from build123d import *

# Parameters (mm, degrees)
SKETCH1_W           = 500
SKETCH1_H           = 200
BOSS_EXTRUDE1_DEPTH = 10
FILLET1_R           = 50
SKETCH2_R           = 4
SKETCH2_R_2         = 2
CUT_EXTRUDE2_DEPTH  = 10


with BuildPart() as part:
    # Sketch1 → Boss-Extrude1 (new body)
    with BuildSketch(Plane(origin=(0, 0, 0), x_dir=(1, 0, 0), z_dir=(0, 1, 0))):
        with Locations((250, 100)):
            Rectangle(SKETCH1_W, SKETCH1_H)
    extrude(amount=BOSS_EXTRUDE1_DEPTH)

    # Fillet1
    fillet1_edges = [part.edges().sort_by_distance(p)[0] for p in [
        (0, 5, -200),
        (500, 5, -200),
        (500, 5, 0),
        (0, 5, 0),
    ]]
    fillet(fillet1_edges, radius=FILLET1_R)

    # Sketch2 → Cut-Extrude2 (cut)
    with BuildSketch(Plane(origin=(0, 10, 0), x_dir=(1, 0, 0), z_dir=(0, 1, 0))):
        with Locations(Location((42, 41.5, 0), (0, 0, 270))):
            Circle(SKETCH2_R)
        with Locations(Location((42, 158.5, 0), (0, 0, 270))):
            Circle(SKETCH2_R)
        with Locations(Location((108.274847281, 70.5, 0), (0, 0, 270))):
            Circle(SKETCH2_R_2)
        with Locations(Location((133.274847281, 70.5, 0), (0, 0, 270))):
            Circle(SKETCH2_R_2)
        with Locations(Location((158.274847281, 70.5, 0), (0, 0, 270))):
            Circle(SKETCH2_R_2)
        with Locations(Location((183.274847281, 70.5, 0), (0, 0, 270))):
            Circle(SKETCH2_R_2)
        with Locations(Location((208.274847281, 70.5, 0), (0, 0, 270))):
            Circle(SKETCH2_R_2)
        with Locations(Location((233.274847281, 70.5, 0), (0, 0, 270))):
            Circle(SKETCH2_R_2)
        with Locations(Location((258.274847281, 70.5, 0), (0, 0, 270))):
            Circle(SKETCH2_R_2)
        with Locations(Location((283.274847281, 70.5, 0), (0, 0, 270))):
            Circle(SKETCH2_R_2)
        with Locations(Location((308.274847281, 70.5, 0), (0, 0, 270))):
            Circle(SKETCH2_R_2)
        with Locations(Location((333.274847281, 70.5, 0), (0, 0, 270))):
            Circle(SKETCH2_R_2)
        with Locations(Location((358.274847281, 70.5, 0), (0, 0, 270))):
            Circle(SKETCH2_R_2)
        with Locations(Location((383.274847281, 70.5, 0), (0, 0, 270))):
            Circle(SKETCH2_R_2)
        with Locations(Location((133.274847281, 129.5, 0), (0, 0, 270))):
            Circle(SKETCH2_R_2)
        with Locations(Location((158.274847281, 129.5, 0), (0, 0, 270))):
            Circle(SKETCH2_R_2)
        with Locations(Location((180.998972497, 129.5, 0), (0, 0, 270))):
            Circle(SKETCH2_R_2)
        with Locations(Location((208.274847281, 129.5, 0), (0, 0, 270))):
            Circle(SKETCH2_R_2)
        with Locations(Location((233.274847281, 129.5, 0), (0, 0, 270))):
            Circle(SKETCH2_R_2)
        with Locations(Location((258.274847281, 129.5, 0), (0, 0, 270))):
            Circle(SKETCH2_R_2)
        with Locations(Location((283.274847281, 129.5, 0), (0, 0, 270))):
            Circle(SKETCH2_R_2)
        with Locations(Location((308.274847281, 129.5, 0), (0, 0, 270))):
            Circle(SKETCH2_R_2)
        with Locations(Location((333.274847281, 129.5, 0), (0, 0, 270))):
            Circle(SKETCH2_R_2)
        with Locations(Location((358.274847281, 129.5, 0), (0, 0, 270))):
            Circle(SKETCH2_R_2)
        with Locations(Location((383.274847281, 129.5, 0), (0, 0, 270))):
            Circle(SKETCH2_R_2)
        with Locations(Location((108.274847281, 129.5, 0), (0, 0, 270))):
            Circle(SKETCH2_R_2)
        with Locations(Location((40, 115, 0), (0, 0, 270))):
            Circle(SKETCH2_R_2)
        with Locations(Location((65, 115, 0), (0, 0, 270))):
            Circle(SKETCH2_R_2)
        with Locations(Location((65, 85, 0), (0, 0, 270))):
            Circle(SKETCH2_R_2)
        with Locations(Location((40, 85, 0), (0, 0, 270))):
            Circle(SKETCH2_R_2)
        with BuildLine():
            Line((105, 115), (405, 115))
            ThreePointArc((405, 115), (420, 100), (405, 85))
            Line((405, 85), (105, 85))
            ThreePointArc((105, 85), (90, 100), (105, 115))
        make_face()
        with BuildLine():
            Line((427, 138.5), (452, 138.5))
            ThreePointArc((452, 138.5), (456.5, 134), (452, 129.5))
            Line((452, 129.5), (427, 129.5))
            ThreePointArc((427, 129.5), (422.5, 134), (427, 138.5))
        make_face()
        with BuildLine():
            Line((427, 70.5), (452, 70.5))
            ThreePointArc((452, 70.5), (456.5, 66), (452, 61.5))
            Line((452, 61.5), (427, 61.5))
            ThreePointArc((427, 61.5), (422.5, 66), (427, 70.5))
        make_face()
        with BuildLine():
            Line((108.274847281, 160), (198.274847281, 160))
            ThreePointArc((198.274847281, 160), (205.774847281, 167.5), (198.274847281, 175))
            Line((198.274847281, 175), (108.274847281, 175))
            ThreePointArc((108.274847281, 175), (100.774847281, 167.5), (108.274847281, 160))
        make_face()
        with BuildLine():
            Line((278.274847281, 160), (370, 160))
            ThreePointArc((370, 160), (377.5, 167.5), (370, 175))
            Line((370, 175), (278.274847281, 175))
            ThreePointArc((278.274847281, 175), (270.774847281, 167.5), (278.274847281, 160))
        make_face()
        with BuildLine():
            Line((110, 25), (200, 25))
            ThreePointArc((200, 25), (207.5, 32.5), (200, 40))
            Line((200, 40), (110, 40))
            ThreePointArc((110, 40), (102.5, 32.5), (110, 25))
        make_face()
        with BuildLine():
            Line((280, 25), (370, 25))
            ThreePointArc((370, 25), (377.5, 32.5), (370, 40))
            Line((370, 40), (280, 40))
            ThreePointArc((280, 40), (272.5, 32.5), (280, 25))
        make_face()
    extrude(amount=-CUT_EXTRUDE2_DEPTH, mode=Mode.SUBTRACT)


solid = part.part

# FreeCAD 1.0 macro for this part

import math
import FreeCAD as App
import Part
import Sketcher

V = App.Vector
Q = App.Units.Quantity


def edges_at(feature, points):
    """Names of the edges that pass closest to the given points."""
    edges = feature.Shape.Edges
    near = lambda p: min(range(len(edges)), key=lambda i: edges[i].distToShape(Part.Vertex(*p))[0])
    return sorted({f"Edge{near(p) + 1}" for p in points})

doc = App.newDocument("Part")
body = doc.addObject("PartDesign::Body", "Body")

sketch1 = doc.addObject("Sketcher::SketchObject", "Sketch")
body.addObject(sketch1)
sketch1.AttachmentSupport = (doc.XZ_Plane, [""])
sketch1.MapMode = "FlatFace"
sketch1.addGeometry([
    Part.LineSegment(V(0, -200, 0), V(0, 0, 0)),
    Part.LineSegment(V(0, 0, 0), V(500, 0, 0)),
    Part.LineSegment(V(500, 0, 0), V(500, -200, 0)),
    Part.LineSegment(V(500, -200, 0), V(0, -200, 0)),
], False)
sketch1.addConstraint([
    Sketcher.Constraint("Coincident", 0, 2, 1, 1),
    Sketcher.Constraint("Coincident", 1, 2, 2, 1),
    Sketcher.Constraint("Coincident", 2, 2, 3, 1),
    Sketcher.Constraint("Coincident", 3, 2, 0, 1),
    Sketcher.Constraint("Vertical", 0),
    Sketcher.Constraint("Horizontal", 1),
    Sketcher.Constraint("Vertical", 2),
    Sketcher.Constraint("Horizontal", 3),
    Sketcher.Constraint("Coincident", 0, 2, -1, 1),
    Sketcher.Constraint("DistanceX", 1, 1, 1, 2, Q("500 mm")),
    Sketcher.Constraint("DistanceY", 0, 1, 0, 2, Q("200 mm")),
])
pad1 = doc.addObject("PartDesign::Pad", "Pad")
body.addObject(pad1)
pad1.Profile = sketch1
pad1.Length = 10
pad1.Reversed = True
doc.recompute()

fillet = doc.addObject("PartDesign::Fillet", "Fillet")
body.addObject(fillet)
fillet.Base = (pad1, edges_at(pad1, [
    (0, 5, -200),
    (500, 5, -200),
    (500, 5, 0),
    (0, 5, 0),
]))
fillet.Radius = 50

sketch2 = doc.addObject("Sketcher::SketchObject", "Sketch001")
body.addObject(sketch2)
sketch2.AttachmentSupport = (doc.XZ_Plane, [""])
sketch2.MapMode = "FlatFace"
sketch2.AttachmentOffset = App.Placement(V(0, 0, -10), App.Rotation())
sketch2.addGeometry([
    Part.Circle(V(42, -41.5, 0), V(0, 0, 1), 4),
    Part.Circle(V(42, -158.5, 0), V(0, 0, 1), 4),
    Part.Circle(V(108.3, -70.5, 0), V(0, 0, 1), 2),
    Part.Circle(V(133.3, -70.5, 0), V(0, 0, 1), 2),
    Part.Circle(V(158.3, -70.5, 0), V(0, 0, 1), 2),
    Part.Circle(V(183.3, -70.5, 0), V(0, 0, 1), 2),
    Part.Circle(V(208.3, -70.5, 0), V(0, 0, 1), 2),
    Part.Circle(V(233.3, -70.5, 0), V(0, 0, 1), 2),
    Part.Circle(V(258.3, -70.5, 0), V(0, 0, 1), 2),
    Part.Circle(V(283.3, -70.5, 0), V(0, 0, 1), 2),
    Part.Circle(V(308.3, -70.5, 0), V(0, 0, 1), 2),
    Part.Circle(V(333.3, -70.5, 0), V(0, 0, 1), 2),
    Part.Circle(V(358.3, -70.5, 0), V(0, 0, 1), 2),
    Part.Circle(V(383.3, -70.5, 0), V(0, 0, 1), 2),
    Part.Circle(V(133.3, -129.5, 0), V(0, 0, 1), 2),
    Part.Circle(V(158.3, -129.5, 0), V(0, 0, 1), 2),
    Part.Circle(V(181, -129.5, 0), V(0, 0, 1), 2),
    Part.Circle(V(208.3, -129.5, 0), V(0, 0, 1), 2),
    Part.Circle(V(233.3, -129.5, 0), V(0, 0, 1), 2),
    Part.Circle(V(258.3, -129.5, 0), V(0, 0, 1), 2),
    Part.Circle(V(283.3, -129.5, 0), V(0, 0, 1), 2),
    Part.Circle(V(308.3, -129.5, 0), V(0, 0, 1), 2),
    Part.Circle(V(333.3, -129.5, 0), V(0, 0, 1), 2),
    Part.Circle(V(358.3, -129.5, 0), V(0, 0, 1), 2),
    Part.Circle(V(383.3, -129.5, 0), V(0, 0, 1), 2),
    Part.Circle(V(108.3, -129.5, 0), V(0, 0, 1), 2),
    Part.Circle(V(40, -115, 0), V(0, 0, 1), 2),
    Part.Circle(V(65, -115, 0), V(0, 0, 1), 2),
    Part.Circle(V(65, -85, 0), V(0, 0, 1), 2),
    Part.Circle(V(40, -85, 0), V(0, 0, 1), 2),
    Part.LineSegment(V(405, -115, 0), V(105, -115, 0)),
    Part.ArcOfCircle(Part.Circle(V(105, -100, 0), V(0, 0, 1), 15), math.radians(90), math.radians(270)),
    Part.LineSegment(V(105, -85, 0), V(405, -85, 0)),
    Part.ArcOfCircle(Part.Circle(V(405, -100, 0), V(0, 0, 1), 15), math.radians(-90), math.radians(90)),
    Part.LineSegment(V(452, -138.5, 0), V(427, -138.5, 0)),
    Part.ArcOfCircle(Part.Circle(V(427, -134, 0), V(0, 0, 1), 4.5), math.radians(90), math.radians(270)),
    Part.LineSegment(V(427, -129.5, 0), V(452, -129.5, 0)),
    Part.ArcOfCircle(Part.Circle(V(452, -134, 0), V(0, 0, 1), 4.5), math.radians(-90), math.radians(90)),
    Part.LineSegment(V(452, -70.5, 0), V(427, -70.5, 0)),
    Part.ArcOfCircle(Part.Circle(V(427, -66, 0), V(0, 0, 1), 4.5), math.radians(90), math.radians(270)),
    Part.LineSegment(V(427, -61.5, 0), V(452, -61.5, 0)),
    Part.ArcOfCircle(Part.Circle(V(452, -66, 0), V(0, 0, 1), 4.5), math.radians(-90), math.radians(90)),
    Part.LineSegment(V(108.3, -160, 0), V(198.3, -160, 0)),
    Part.ArcOfCircle(Part.Circle(V(198.3, -167.5, 0), V(0, 0, 1), 7.5), math.radians(-90), math.radians(90)),
    Part.LineSegment(V(198.3, -175, 0), V(108.3, -175, 0)),
    Part.ArcOfCircle(Part.Circle(V(108.3, -167.5, 0), V(0, 0, 1), 7.5), math.radians(90), math.radians(270)),
    Part.LineSegment(V(278.3, -160, 0), V(370, -160, 0)),
    Part.ArcOfCircle(Part.Circle(V(370, -167.5, 0), V(0, 0, 1), 7.5), math.radians(-90), math.radians(90)),
    Part.LineSegment(V(370, -175, 0), V(278.3, -175, 0)),
    Part.ArcOfCircle(Part.Circle(V(278.3, -167.5, 0), V(0, 0, 1), 7.5), math.radians(90), math.radians(270)),
    Part.LineSegment(V(110, -25, 0), V(200, -25, 0)),
    Part.ArcOfCircle(Part.Circle(V(200, -32.5, 0), V(0, 0, 1), 7.5), math.radians(-90), math.radians(90)),
    Part.LineSegment(V(200, -40, 0), V(110, -40, 0)),
    Part.ArcOfCircle(Part.Circle(V(110, -32.5, 0), V(0, 0, 1), 7.5), math.radians(90), math.radians(270)),
    Part.LineSegment(V(280, -25, 0), V(370, -25, 0)),
    Part.ArcOfCircle(Part.Circle(V(370, -32.5, 0), V(0, 0, 1), 7.5), math.radians(-90), math.radians(90)),
    Part.LineSegment(V(370, -40, 0), V(280, -40, 0)),
    Part.ArcOfCircle(Part.Circle(V(280, -32.5, 0), V(0, 0, 1), 7.5), math.radians(90), math.radians(270)),
], False)
sketch2.addConstraint([
    Sketcher.Constraint("Tangent", 30, 2, 31, 2),
    Sketcher.Constraint("Tangent", 31, 1, 32, 1),
    Sketcher.Constraint("Tangent", 32, 2, 33, 2),
    Sketcher.Constraint("Tangent", 33, 1, 30, 1),
    Sketcher.Constraint("Tangent", 34, 2, 35, 2),
    Sketcher.Constraint("Tangent", 35, 1, 36, 1),
    Sketcher.Constraint("Tangent", 36, 2, 37, 2),
    Sketcher.Constraint("Tangent", 37, 1, 34, 1),
    Sketcher.Constraint("Tangent", 38, 2, 39, 2),
    Sketcher.Constraint("Tangent", 39, 1, 40, 1),
    Sketcher.Constraint("Tangent", 40, 2, 41, 2),
    Sketcher.Constraint("Tangent", 41, 1, 38, 1),
    Sketcher.Constraint("Tangent", 42, 2, 43, 2),
    Sketcher.Constraint("Tangent", 43, 1, 44, 1),
    Sketcher.Constraint("Tangent", 44, 2, 45, 2),
    Sketcher.Constraint("Tangent", 45, 1, 42, 1),
    Sketcher.Constraint("Tangent", 46, 2, 47, 2),
    Sketcher.Constraint("Tangent", 47, 1, 48, 1),
    Sketcher.Constraint("Tangent", 48, 2, 49, 2),
    Sketcher.Constraint("Tangent", 49, 1, 46, 1),
    Sketcher.Constraint("Tangent", 50, 2, 51, 2),
    Sketcher.Constraint("Tangent", 51, 1, 52, 1),
    Sketcher.Constraint("Tangent", 52, 2, 53, 2),
    Sketcher.Constraint("Tangent", 53, 1, 50, 1),
    Sketcher.Constraint("Tangent", 54, 2, 55, 2),
    Sketcher.Constraint("Tangent", 55, 1, 56, 1),
    Sketcher.Constraint("Tangent", 56, 2, 57, 2),
    Sketcher.Constraint("Tangent", 57, 1, 54, 1),
    Sketcher.Constraint("Horizontal", 30),
    Sketcher.Constraint("Horizontal", 32),
    Sketcher.Constraint("Horizontal", 34),
    Sketcher.Constraint("Horizontal", 36),
    Sketcher.Constraint("Horizontal", 38),
    Sketcher.Constraint("Horizontal", 40),
    Sketcher.Constraint("Horizontal", 42),
    Sketcher.Constraint("Horizontal", 44),
    Sketcher.Constraint("Horizontal", 46),
    Sketcher.Constraint("Horizontal", 48),
    Sketcher.Constraint("Horizontal", 50),
    Sketcher.Constraint("Horizontal", 52),
    Sketcher.Constraint("Horizontal", 54),
    Sketcher.Constraint("Horizontal", 56),
    Sketcher.Constraint("Equal", 0, 1),
    Sketcher.Constraint("Equal", 2, 3),
    Sketcher.Constraint("Equal", 3, 4),
    Sketcher.Constraint("Equal", 4, 5),
    Sketcher.Constraint("Equal", 5, 6),
    Sketcher.Constraint("Equal", 6, 7),
    Sketcher.Constraint("Equal", 7, 8),
    Sketcher.Constraint("Equal", 8, 9),
    Sketcher.Constraint("Equal", 9, 10),
    Sketcher.Constraint("Equal", 10, 11),
    Sketcher.Constraint("Equal", 11, 12),
    Sketcher.Constraint("Equal", 12, 13),
    Sketcher.Constraint("Equal", 13, 14),
    Sketcher.Constraint("Equal", 14, 15),
    Sketcher.Constraint("Equal", 15, 16),
    Sketcher.Constraint("Equal", 16, 17),
    Sketcher.Constraint("Equal", 17, 18),
    Sketcher.Constraint("Equal", 18, 19),
    Sketcher.Constraint("Equal", 19, 20),
    Sketcher.Constraint("Equal", 20, 21),
    Sketcher.Constraint("Equal", 21, 22),
    Sketcher.Constraint("Equal", 22, 23),
    Sketcher.Constraint("Equal", 23, 24),
    Sketcher.Constraint("Equal", 24, 25),
    Sketcher.Constraint("Equal", 25, 26),
    Sketcher.Constraint("Equal", 26, 27),
    Sketcher.Constraint("Equal", 27, 28),
    Sketcher.Constraint("Equal", 28, 29),
    Sketcher.Constraint("Equal", 37, 39),
    Sketcher.Constraint("Equal", 45, 47),
    Sketcher.Constraint("Equal", 49, 51),
    Sketcher.Constraint("Equal", 53, 55),
    Sketcher.Constraint("Horizontal", 2, 3, 3, 3),
    Sketcher.Constraint("Horizontal", 3, 3, 4, 3),
    Sketcher.Constraint("Horizontal", 4, 3, 5, 3),
    Sketcher.Constraint("Horizontal", 5, 3, 6, 3),
    Sketcher.Constraint("Horizontal", 6, 3, 7, 3),
    Sketcher.Constraint("Horizontal", 7, 3, 8, 3),
    Sketcher.Constraint("Horizontal", 8, 3, 9, 3),
    Sketcher.Constraint("Horizontal", 9, 3, 10, 3),
    Sketcher.Constraint("Horizontal", 10, 3, 11, 3),
    Sketcher.Constraint("Horizontal", 11, 3, 12, 3),
    Sketcher.Constraint("Horizontal", 12, 3, 13, 3),
    Sketcher.Constraint("Horizontal", 14, 3, 15, 3),
    Sketcher.Constraint("Horizontal", 15, 3, 16, 3),
    Sketcher.Constraint("Horizontal", 16, 3, 17, 3),
    Sketcher.Constraint("Horizontal", 17, 3, 18, 3),
    Sketcher.Constraint("Horizontal", 18, 3, 19, 3),
    Sketcher.Constraint("Horizontal", 19, 3, 20, 3),
    Sketcher.Constraint("Horizontal", 20, 3, 21, 3),
    Sketcher.Constraint("Horizontal", 21, 3, 22, 3),
    Sketcher.Constraint("Horizontal", 22, 3, 23, 3),
    Sketcher.Constraint("Horizontal", 23, 3, 24, 3),
    Sketcher.Constraint("Horizontal", 24, 3, 25, 3),
    Sketcher.Constraint("Horizontal", 26, 3, 27, 3),
    Sketcher.Constraint("Horizontal", 28, 3, 29, 3),
    Sketcher.Constraint("Horizontal", 45, 3, 47, 3),
    Sketcher.Constraint("Horizontal", 53, 3, 55, 3),
    Sketcher.Constraint("Horizontal", 27, 3, 30, 2),
    Sketcher.Constraint("Horizontal", 29, 3, 31, 1),
    Sketcher.Constraint("Horizontal", 25, 3, 35, 1),
    Sketcher.Constraint("Horizontal", 13, 3, 38, 2),
    Sketcher.Constraint("Vertical", 0, 3, 1, 3),
    Sketcher.Constraint("Vertical", 3, 3, 14, 3),
    Sketcher.Constraint("Vertical", 4, 3, 15, 3),
    Sketcher.Constraint("Vertical", 6, 3, 17, 3),
    Sketcher.Constraint("Vertical", 7, 3, 18, 3),
    Sketcher.Constraint("Vertical", 8, 3, 19, 3),
    Sketcher.Constraint("Vertical", 9, 3, 20, 3),
    Sketcher.Constraint("Vertical", 10, 3, 21, 3),
    Sketcher.Constraint("Vertical", 11, 3, 22, 3),
    Sketcher.Constraint("Vertical", 12, 3, 23, 3),
    Sketcher.Constraint("Vertical", 13, 3, 24, 3),
    Sketcher.Constraint("Vertical", 2, 3, 25, 3),
    Sketcher.Constraint("Vertical", 27, 3, 28, 3),
    Sketcher.Constraint("Vertical", 26, 3, 29, 3),
    Sketcher.Constraint("Vertical", 35, 3, 39, 3),
    Sketcher.Constraint("Vertical", 37, 3, 41, 3),
    Sketcher.Constraint("Vertical", 25, 3, 45, 3),
    Sketcher.Constraint("Vertical", 47, 3, 55, 3),
    Sketcher.Constraint("Equal", 44, 50),
    Sketcher.Constraint("Equal", 52, 54),
    Sketcher.Constraint("Diameter", 0, Q("8 mm")),
    Sketcher.Constraint("Diameter", 2, Q("4 mm")),
    Sketcher.Constraint("Radius", 31, Q("15 mm")),
    Sketcher.Constraint("Radius", 35, Q("4.5 mm")),
    Sketcher.Constraint("Radius", 43, Q("7.5 mm")),
    Sketcher.Constraint("DistanceX", 30, 2, 30, 1, Q("300 mm")),
    Sketcher.Constraint("DistanceX", 34, 2, 34, 1, Q("25 mm")),
    Sketcher.Constraint("DistanceX", 42, 1, 42, 2, Q("90 mm")),
    Sketcher.Constraint("DistanceX", -1, 1, 0, 3, Q("42 mm")),
    Sketcher.Constraint("DistanceX", -1, 1, 26, 3, Q("40 mm")),
    Sketcher.Constraint("DistanceY", 26, 3, -1, 1, Q("115 mm")),
    Sketcher.Constraint("DistanceX", -1, 1, 27, 3, Q("65 mm")),
    Sketcher.Constraint("DistanceX", -1, 1, 31, 3, Q("105 mm")),
    Sketcher.Constraint("DistanceX", -1, 1, 35, 3, Q("427 mm")),
    Sketcher.Constraint("DistanceY", 35, 3, -1, 1, Q("134 mm")),
    Sketcher.Constraint("DistanceY", 39, 3, -1, 1, Q("66 mm")),
    Sketcher.Constraint("DistanceX", -1, 1, 47, 3, Q("370 mm")),
    Sketcher.Constraint("DistanceX", -1, 1, 51, 3, Q("200 mm")),
    Sketcher.Constraint("DistanceY", 42, 2, -1, 1, Q("160 mm")),
    Sketcher.Constraint("DistanceY", 50, 2, -1, 1, Q("25 mm")),
    Sketcher.Constraint("DistanceY", 0, 3, -1, 1, Q("41.5 mm")),
    Sketcher.Constraint("DistanceY", 1, 3, -1, 1, Q("158.5 mm")),
    Sketcher.Constraint("DistanceX", 46, 1, 46, 2, Q("91.725153 mm")),
    Sketcher.Constraint("DistanceX", -1, 1, 2, 3, Q("108.274847 mm")),
    Sketcher.Constraint("DistanceX", -1, 1, 3, 3, Q("133.274847 mm")),
    Sketcher.Constraint("DistanceX", -1, 1, 4, 3, Q("158.274847 mm")),
    Sketcher.Constraint("DistanceX", -1, 1, 5, 3, Q("183.274847 mm")),
    Sketcher.Constraint("DistanceX", -1, 1, 6, 3, Q("208.274847 mm")),
    Sketcher.Constraint("DistanceX", -1, 1, 7, 3, Q("233.274847 mm")),
    Sketcher.Constraint("DistanceX", -1, 1, 8, 3, Q("258.274847 mm")),
    Sketcher.Constraint("DistanceX", -1, 1, 9, 3, Q("283.274847 mm")),
    Sketcher.Constraint("DistanceX", -1, 1, 10, 3, Q("308.274847 mm")),
    Sketcher.Constraint("DistanceX", -1, 1, 11, 3, Q("333.274847 mm")),
    Sketcher.Constraint("DistanceX", -1, 1, 12, 3, Q("358.274847 mm")),
    Sketcher.Constraint("DistanceX", -1, 1, 13, 3, Q("383.274847 mm")),
    Sketcher.Constraint("DistanceX", -1, 1, 16, 3, Q("180.998972 mm")),
])
pocket1 = doc.addObject("PartDesign::Pocket", "Pocket")
body.addObject(pocket1)
pocket1.Profile = sketch2
pocket1.Length = 10
pocket1.Reversed = True

doc.recompute()
